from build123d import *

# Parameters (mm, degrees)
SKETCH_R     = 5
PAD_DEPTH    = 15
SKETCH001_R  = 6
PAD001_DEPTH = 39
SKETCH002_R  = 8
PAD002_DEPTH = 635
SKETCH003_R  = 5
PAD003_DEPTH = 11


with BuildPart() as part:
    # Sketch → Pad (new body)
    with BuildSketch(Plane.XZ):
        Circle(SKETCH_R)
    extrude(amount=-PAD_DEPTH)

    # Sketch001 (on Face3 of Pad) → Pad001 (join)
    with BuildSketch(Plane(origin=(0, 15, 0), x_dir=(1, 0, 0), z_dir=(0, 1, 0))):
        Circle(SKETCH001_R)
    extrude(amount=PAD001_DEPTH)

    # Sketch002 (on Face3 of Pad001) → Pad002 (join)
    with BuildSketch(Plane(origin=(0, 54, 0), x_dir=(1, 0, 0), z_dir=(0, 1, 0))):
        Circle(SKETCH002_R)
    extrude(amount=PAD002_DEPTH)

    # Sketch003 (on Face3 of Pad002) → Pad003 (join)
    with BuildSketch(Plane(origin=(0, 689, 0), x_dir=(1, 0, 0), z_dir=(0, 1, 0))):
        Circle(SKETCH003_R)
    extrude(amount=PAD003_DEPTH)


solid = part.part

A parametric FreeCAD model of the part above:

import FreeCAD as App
import Part
import Sketcher

doc = App.newDocument("Part")
body = doc.addObject("PartDesign::Body", "Body")

# Sketch on XZ plane
sketch1 = body.newObject("Sketcher::SketchObject", "Sketch")
sketch1.AttachmentSupport = (doc.getObject("XZ_Plane"), [""])
sketch1.MapMode = "FlatFace"
sketch1.addGeometry(Part.Circle(App.Vector(0, 0, 0), App.Vector(0, 0, 1), 5), False)
sketch1.addConstraint(Sketcher.Constraint("Coincident", 0, 3, -1, 1))
sketch1.addConstraint(Sketcher.Constraint("Diameter", 0, 10.0))
pad1 = body.newObject("PartDesign::Pad", "Pad")
pad1.Profile = sketch1
pad1.Length = 15
pad1.Reversed = True

# Sketch on XZ plane
sketch2 = body.newObject("Sketcher::SketchObject", "Sketch001")
sketch2.AttachmentSupport = (doc.getObject("XZ_Plane"), [""])
sketch2.MapMode = "FlatFace"
sketch2.AttachmentOffset = App.Placement(App.Vector(0, 0, -15), App.Rotation())
sketch2.addGeometry(Part.Circle(App.Vector(0, 0, 0), App.Vector(0, 0, 1), 6), False)
sketch2.addConstraint(Sketcher.Constraint("Coincident", 0, 3, -1, 1))
sketch2.addConstraint(Sketcher.Constraint("Diameter", 0, 12.0))
pad2 = body.newObject("PartDesign::Pad", "Pad001")
pad2.Profile = sketch2
pad2.Length = 39
pad2.Reversed = True

# Sketch on XZ plane
sketch3 = body.newObject("Sketcher::SketchObject", "Sketch002")
sketch3.AttachmentSupport = (doc.getObject("XZ_Plane"), [""])
sketch3.MapMode = "FlatFace"
sketch3.AttachmentOffset = App.Placement(App.Vector(0, 0, -54), App.Rotation())
sketch3.addGeometry(Part.Circle(App.Vector(0, 0, 0), App.Vector(0, 0, 1), 8), False)
sketch3.addConstraint(Sketcher.Constraint("Coincident", 0, 3, -1, 1))
sketch3.addConstraint(Sketcher.Constraint("Diameter", 0, 16.0))
pad3 = body.newObject("PartDesign::Pad", "Pad002")
pad3.Profile = sketch3
pad3.Length = 635
pad3.Reversed = True

# Sketch on XZ plane
sketch4 = body.newObject("Sketcher::SketchObject", "Sketch003")
sketch4.AttachmentSupport = (doc.getObject("XZ_Plane"), [""])
sketch4.MapMode = "FlatFace"
sketch4.AttachmentOffset = App.Placement(App.Vector(0, 0, -689), App.Rotation())
sketch4.addGeometry(Part.Circle(App.Vector(0, 0, 0), App.Vector(0, 0, 1), 5), False)
sketch4.addConstraint(Sketcher.Constraint("Coincident", 0, 3, -1, 1))
sketch4.addConstraint(Sketcher.Constraint("Diameter", 0, 10.0))
pad4 = body.newObject("PartDesign::Pad", "Pad003")
pad4.Profile = sketch4
pad4.Length = 11
pad4.Reversed = True

doc.recompute()
